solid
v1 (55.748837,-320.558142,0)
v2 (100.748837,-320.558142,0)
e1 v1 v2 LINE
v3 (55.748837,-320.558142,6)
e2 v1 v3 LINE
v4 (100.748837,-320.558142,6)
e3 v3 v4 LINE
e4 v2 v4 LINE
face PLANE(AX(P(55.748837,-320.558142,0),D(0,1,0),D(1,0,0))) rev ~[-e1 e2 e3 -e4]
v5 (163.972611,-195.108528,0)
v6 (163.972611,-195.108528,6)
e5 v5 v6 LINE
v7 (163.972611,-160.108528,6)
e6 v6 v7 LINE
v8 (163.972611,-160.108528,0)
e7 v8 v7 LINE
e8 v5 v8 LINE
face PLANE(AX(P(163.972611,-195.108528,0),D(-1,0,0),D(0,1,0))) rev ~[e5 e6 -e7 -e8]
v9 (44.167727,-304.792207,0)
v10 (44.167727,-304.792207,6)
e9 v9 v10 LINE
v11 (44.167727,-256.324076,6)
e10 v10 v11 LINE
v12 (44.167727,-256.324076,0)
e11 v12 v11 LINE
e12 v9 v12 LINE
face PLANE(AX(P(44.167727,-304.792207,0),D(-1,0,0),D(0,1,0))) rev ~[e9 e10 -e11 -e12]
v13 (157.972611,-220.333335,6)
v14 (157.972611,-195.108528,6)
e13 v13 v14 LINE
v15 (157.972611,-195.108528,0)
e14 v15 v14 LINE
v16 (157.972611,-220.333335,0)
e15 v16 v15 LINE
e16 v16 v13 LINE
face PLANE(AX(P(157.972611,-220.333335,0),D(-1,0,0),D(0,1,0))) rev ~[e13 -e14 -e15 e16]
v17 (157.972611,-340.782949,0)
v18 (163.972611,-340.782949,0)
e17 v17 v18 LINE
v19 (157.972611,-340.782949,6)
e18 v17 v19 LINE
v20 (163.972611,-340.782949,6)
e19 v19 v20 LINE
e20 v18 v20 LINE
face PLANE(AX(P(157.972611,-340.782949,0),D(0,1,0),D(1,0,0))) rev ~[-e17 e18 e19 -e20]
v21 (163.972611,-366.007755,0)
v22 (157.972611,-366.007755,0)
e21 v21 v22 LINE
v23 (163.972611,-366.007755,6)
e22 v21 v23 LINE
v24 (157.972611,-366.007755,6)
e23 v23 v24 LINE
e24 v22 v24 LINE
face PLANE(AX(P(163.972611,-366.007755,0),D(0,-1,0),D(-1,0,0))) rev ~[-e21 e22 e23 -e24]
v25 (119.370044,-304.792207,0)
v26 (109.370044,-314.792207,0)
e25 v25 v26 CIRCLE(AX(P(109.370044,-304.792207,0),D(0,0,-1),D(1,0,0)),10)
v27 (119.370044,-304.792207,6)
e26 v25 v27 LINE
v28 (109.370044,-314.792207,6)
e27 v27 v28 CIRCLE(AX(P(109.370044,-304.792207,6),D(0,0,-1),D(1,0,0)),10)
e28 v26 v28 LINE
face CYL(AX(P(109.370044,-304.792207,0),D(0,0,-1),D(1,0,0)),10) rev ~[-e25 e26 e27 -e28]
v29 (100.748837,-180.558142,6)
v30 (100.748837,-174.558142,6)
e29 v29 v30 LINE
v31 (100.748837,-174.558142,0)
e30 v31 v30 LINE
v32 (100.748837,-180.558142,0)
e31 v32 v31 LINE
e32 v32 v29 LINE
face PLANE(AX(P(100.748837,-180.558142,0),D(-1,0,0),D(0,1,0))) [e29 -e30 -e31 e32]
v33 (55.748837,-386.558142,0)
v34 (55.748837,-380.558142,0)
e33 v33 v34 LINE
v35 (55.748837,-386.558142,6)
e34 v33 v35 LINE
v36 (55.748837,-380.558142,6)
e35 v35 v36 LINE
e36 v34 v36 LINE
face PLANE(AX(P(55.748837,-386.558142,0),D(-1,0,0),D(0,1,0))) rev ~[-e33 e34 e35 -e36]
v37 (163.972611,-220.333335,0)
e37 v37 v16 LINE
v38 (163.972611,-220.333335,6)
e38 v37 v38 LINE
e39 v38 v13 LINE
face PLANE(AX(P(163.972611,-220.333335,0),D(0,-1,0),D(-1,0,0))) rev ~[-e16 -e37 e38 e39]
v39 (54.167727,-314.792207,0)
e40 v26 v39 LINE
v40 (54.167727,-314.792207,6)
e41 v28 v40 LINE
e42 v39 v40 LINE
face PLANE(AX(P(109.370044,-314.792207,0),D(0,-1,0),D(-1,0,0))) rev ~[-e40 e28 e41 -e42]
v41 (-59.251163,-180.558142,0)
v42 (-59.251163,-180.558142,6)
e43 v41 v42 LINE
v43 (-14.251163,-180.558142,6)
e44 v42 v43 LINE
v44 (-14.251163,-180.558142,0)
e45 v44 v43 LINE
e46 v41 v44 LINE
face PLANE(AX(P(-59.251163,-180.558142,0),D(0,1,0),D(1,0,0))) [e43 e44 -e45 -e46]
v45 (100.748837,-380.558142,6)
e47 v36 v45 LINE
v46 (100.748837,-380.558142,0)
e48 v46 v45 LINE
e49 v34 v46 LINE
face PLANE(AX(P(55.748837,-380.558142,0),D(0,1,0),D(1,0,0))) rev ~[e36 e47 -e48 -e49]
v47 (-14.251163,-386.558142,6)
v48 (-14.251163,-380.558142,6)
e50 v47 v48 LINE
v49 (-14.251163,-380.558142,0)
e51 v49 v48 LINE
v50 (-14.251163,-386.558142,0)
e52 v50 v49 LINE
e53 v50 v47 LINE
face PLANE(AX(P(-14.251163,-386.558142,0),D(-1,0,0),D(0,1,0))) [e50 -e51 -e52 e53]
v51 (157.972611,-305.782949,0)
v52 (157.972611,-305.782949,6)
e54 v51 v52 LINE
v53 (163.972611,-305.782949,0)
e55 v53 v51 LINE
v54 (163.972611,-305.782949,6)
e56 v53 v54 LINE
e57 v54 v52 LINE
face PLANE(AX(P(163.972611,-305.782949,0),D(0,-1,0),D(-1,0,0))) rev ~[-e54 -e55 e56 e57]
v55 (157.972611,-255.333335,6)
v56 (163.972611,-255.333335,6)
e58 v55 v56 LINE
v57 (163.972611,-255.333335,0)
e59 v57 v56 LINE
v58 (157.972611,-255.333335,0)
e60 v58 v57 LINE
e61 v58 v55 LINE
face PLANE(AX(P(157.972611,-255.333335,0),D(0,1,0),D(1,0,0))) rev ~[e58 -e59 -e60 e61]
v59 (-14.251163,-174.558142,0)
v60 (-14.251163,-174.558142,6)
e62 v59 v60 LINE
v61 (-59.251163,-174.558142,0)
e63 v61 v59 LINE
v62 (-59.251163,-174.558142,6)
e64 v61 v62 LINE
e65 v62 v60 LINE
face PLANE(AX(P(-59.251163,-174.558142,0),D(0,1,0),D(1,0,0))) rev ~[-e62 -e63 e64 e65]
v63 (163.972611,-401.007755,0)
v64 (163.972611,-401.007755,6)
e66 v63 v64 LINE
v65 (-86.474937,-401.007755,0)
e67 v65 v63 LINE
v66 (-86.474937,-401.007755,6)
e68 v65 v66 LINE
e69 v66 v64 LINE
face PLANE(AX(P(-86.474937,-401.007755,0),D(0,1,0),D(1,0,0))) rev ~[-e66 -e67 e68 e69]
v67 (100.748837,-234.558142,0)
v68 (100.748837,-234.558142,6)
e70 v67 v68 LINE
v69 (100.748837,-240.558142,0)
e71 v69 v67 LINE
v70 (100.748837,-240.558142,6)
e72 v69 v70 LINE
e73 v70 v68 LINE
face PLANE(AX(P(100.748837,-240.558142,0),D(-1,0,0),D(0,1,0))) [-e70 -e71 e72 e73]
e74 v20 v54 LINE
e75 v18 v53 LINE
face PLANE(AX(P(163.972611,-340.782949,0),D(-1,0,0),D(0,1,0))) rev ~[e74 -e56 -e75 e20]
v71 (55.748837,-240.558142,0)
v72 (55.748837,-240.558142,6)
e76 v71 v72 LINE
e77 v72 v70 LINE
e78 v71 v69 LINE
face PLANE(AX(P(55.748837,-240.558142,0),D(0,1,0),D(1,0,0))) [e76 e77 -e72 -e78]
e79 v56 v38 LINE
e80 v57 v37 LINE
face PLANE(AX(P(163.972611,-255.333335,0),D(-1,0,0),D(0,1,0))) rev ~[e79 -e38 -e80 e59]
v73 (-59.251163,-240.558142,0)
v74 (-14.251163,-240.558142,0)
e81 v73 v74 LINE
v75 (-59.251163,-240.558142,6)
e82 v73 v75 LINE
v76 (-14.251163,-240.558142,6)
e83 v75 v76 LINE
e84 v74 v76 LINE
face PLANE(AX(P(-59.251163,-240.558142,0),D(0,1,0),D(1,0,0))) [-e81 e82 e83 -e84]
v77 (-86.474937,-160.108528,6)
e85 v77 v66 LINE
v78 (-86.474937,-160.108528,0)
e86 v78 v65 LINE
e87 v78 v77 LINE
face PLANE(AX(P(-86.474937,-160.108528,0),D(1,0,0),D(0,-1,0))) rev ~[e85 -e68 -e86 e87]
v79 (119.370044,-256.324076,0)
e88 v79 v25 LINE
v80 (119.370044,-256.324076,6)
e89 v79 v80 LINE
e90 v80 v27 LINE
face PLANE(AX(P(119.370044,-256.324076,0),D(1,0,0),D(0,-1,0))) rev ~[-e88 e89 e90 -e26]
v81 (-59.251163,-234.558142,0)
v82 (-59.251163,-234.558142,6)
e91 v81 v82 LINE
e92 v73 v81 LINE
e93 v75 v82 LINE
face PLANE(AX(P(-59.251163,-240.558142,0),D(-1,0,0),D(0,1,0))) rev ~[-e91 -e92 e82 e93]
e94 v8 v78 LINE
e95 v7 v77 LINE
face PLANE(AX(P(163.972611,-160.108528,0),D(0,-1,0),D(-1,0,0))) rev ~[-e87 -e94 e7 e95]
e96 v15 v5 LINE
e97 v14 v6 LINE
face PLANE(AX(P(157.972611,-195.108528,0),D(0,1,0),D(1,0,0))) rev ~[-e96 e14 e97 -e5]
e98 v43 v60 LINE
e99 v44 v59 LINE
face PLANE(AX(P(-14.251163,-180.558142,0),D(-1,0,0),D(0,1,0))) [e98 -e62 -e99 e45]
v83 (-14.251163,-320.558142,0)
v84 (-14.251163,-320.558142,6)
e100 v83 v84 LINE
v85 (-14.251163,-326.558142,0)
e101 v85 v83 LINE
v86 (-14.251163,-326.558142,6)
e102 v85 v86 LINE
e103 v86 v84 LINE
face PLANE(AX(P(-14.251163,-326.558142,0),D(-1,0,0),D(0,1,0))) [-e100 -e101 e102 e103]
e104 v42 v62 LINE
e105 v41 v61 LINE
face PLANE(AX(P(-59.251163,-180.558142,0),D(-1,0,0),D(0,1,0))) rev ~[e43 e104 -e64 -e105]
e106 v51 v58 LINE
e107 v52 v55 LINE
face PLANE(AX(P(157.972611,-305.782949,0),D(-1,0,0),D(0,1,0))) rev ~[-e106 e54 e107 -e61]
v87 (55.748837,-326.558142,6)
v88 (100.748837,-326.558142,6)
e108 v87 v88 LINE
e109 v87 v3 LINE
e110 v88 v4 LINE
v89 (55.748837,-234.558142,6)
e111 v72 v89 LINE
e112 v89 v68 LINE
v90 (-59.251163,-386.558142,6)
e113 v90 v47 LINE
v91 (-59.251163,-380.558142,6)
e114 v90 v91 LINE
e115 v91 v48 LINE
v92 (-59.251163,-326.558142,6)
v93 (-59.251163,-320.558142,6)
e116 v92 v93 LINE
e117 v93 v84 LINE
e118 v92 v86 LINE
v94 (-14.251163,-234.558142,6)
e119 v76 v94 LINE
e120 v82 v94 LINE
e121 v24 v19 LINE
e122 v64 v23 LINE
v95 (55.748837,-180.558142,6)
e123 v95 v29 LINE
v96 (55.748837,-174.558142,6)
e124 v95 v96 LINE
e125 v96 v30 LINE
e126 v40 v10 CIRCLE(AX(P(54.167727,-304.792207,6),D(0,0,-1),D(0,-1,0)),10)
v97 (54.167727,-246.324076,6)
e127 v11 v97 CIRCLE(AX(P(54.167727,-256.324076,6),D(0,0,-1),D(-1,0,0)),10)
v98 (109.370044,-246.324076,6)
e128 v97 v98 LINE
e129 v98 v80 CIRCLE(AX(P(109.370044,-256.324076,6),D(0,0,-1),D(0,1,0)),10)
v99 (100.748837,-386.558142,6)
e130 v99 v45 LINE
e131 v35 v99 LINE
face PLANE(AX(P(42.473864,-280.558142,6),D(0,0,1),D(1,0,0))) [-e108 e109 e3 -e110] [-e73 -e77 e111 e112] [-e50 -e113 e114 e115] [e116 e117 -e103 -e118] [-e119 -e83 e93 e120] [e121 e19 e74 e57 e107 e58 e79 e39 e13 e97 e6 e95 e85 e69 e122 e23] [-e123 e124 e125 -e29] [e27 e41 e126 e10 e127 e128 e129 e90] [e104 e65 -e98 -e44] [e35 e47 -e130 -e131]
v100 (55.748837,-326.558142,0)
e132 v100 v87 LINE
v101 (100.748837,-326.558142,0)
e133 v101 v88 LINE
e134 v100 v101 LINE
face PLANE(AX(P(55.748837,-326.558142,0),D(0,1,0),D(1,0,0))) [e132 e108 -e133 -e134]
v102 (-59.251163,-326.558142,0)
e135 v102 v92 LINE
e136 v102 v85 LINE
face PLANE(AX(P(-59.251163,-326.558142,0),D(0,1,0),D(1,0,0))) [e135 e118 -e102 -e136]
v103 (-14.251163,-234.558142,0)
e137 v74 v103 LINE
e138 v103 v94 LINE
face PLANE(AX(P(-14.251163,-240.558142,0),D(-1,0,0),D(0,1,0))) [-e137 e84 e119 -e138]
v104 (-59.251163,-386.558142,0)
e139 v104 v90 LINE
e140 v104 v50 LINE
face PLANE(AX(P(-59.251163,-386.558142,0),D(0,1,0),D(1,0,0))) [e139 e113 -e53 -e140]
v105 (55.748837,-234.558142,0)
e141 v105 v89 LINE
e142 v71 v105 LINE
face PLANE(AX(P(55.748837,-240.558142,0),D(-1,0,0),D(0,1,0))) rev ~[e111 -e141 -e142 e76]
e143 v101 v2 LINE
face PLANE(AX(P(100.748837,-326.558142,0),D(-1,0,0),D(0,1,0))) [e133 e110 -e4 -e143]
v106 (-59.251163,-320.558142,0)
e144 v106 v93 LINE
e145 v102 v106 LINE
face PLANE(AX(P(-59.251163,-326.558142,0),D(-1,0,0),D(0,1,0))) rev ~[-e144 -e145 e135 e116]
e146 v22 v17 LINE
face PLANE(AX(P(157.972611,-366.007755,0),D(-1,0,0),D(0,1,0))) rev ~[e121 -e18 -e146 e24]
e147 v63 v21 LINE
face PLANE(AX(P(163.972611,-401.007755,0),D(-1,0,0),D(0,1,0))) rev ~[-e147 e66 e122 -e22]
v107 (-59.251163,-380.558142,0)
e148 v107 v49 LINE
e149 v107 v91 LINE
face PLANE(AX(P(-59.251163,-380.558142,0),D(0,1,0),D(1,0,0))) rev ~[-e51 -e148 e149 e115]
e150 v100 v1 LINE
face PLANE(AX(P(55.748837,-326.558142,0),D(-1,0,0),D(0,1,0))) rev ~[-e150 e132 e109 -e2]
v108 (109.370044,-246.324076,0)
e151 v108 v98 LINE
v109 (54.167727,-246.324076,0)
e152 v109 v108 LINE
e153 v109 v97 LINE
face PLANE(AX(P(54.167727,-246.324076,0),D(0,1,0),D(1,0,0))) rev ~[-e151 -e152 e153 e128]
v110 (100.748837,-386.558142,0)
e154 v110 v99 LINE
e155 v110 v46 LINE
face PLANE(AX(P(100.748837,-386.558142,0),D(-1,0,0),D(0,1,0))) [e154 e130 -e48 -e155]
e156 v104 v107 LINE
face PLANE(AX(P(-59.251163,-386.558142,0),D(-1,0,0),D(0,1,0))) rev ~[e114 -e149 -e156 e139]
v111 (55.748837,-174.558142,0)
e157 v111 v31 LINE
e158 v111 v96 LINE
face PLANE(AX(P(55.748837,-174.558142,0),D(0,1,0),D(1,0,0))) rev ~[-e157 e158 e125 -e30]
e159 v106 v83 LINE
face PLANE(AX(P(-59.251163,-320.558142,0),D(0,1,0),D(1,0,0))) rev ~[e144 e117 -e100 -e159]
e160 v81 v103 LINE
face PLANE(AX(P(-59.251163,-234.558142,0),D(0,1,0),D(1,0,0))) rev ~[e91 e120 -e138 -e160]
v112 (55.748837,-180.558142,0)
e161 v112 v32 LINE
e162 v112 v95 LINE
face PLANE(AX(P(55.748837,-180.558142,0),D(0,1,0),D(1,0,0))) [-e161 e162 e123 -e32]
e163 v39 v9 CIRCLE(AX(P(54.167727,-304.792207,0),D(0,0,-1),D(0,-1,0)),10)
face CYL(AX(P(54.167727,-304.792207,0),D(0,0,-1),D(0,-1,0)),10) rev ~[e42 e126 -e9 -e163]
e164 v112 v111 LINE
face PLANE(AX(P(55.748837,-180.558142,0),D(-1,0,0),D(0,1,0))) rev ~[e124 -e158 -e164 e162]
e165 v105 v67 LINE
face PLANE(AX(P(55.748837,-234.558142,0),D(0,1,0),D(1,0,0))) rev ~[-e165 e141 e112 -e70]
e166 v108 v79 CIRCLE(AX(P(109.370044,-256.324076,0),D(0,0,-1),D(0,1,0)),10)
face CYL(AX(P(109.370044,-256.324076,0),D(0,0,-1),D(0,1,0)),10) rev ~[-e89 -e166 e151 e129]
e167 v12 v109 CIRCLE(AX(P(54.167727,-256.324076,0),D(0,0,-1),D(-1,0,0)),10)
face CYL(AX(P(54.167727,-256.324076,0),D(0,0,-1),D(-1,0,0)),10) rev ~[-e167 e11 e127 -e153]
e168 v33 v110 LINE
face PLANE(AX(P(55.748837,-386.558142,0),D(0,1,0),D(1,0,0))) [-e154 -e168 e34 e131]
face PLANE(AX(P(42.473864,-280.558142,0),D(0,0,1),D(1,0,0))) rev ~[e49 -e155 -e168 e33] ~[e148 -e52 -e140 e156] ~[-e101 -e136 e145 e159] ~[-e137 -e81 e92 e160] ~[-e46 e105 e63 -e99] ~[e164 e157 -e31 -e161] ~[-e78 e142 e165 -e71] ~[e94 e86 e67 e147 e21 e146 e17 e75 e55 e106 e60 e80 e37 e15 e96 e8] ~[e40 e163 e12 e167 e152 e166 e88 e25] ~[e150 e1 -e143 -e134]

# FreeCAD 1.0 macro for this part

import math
import FreeCAD as App
import Part
import Sketcher
from FreeCAD import Vector
Q = App.Units.Quantity


def add_polygon(sketch, points):
    """Adds a closed chain of lines whose ends are joined by coincident constraints."""
    first, n = sketch.GeometryCount, len(points)
    for a, b in zip(points, points[1:] + points[:1]):
        sketch.addGeometry(Part.LineSegment(App.Vector(*a, 0), App.Vector(*b, 0)), False)
    for i in range(n):
        sketch.addConstraint(Sketcher.Constraint("Coincident", first + i, 2, first + (i + 1) % n, 1))

doc = App.newDocument("Part")
body = doc.addObject("PartDesign::Body", "Body")

sketch1 = body.newObject("Sketcher::SketchObject", "Sketch")
sketch1.AttachmentSupport = (doc.getObject("XY_Plane"), [""])
sketch1.MapMode = "FlatFace"
add_polygon(sketch1, [(-86, -160), (-86, -401), (164, -401), (164, -366), (158, -366), (158, -341), (164, -341), (164, -306), (158, -306), (158, -255), (164, -255), (164, -220), (158, -220), (158, -195), (164, -195), (164, -160)])
add_polygon(sketch1, [(-14, -387), (-59, -387), (-59, -381), (-14, -381)])
add_polygon(sketch1, [(-14, -327), (-59, -327), (-59, -321), (-14, -321)])
add_polygon(sketch1, [(101, -387), (56, -387), (56, -381), (101, -381)])
add_polygon(sketch1, [(101, -327), (56, -327), (56, -321), (101, -321)])
sketch1.addGeometry(Part.ArcOfCircle(Part.Circle(Vector(54, -256, 0), Vector(0, 0, 1), 10), math.radians(90), math.radians(180)), False)
sketch1.addGeometry(Part.LineSegment(Vector(54, -246, 0), Vector(109, -246, 0)), False)
sketch1.addGeometry(Part.ArcOfCircle(Part.Circle(Vector(109, -256, 0), Vector(0, 0, 1), 10), math.radians(0), math.radians(90)), False)
sketch1.addGeometry(Part.LineSegment(Vector(119, -256, 0), Vector(119, -305, 0)), False)
sketch1.addGeometry(Part.ArcOfCircle(Part.Circle(Vector(109, -305, 0), Vector(0, 0, 1), 10), math.radians(-90), math.radians(0)), False)
sketch1.addGeometry(Part.LineSegment(Vector(109, -315, 0), Vector(54, -315, 0)), False)
sketch1.addGeometry(Part.ArcOfCircle(Part.Circle(Vector(54, -305, 0), Vector(0, 0, 1), 10), math.radians(180), math.radians(270)), False)
sketch1.addGeometry(Part.LineSegment(Vector(44, -305, 0), Vector(44, -256, 0)), False)
add_polygon(sketch1, [(-14, -241), (-59, -241), (-59, -235), (-14, -235)])
add_polygon(sketch1, [(-14, -181), (-59, -181), (-59, -175), (-14, -175)])
add_polygon(sketch1, [(101, -241), (56, -241), (56, -235), (101, -235)])
add_polygon(sketch1, [(101, -181), (56, -181), (56, -175), (101, -175)])
sketch1.addConstraint(Sketcher.Constraint("Tangent", 32, 1, 33, 1))
sketch1.addConstraint(Sketcher.Constraint("Tangent", 33, 2, 34, 2))
sketch1.addConstraint(Sketcher.Constraint("Tangent", 34, 1, 35, 1))
sketch1.addConstraint(Sketcher.Constraint("Tangent", 35, 2, 36, 2))
sketch1.addConstraint(Sketcher.Constraint("Tangent", 36, 1, 37, 1))
sketch1.addConstraint(Sketcher.Constraint("Tangent", 37, 2, 38, 2))
sketch1.addConstraint(Sketcher.Constraint("Tangent", 38, 1, 39, 1))
sketch1.addConstraint(Sketcher.Constraint("Tangent", 39, 2, 32, 2))
sketch1.addConstraint(Sketcher.Constraint("Vertical", 0))
sketch1.addConstraint(Sketcher.Constraint("Horizontal", 1))
sketch1.addConstraint(Sketcher.Constraint("Vertical", 2))
sketch1.addConstraint(Sketcher.Constraint("Horizontal", 3))
sketch1.addConstraint(Sketcher.Constraint("Vertical", 4))
sketch1.addConstraint(Sketcher.Constraint("Horizontal", 5))
sketch1.addConstraint(Sketcher.Constraint("Vertical", 6))
sketch1.addConstraint(Sketcher.Constraint("Horizontal", 7))
sketch1.addConstraint(Sketcher.Constraint("Vertical", 8))
sketch1.addConstraint(Sketcher.Constraint("Horizontal", 9))
sketch1.addConstraint(Sketcher.Constraint("Vertical", 10))
sketch1.addConstraint(Sketcher.Constraint("Horizontal", 11))
sketch1.addConstraint(Sketcher.Constraint("Vertical", 12))
sketch1.addConstraint(Sketcher.Constraint("Horizontal", 13))
sketch1.addConstraint(Sketcher.Constraint("Vertical", 14))
sketch1.addConstraint(Sketcher.Constraint("Horizontal", 15))
sketch1.addConstraint(Sketcher.Constraint("Horizontal", 16))
sketch1.addConstraint(Sketcher.Constraint("Vertical", 17))
sketch1.addConstraint(Sketcher.Constraint("Horizontal", 18))
sketch1.addConstraint(Sketcher.Constraint("Vertical", 19))
sketch1.addConstraint(Sketcher.Constraint("Horizontal", 20))
sketch1.addConstraint(Sketcher.Constraint("Vertical", 21))
sketch1.addConstraint(Sketcher.Constraint("Horizontal", 22))
sketch1.addConstraint(Sketcher.Constraint("Vertical", 23))
sketch1.addConstraint(Sketcher.Constraint("Horizontal", 24))
sketch1.addConstraint(Sketcher.Constraint("Vertical", 25))
sketch1.addConstraint(Sketcher.Constraint("Horizontal", 26))
sketch1.addConstraint(Sketcher.Constraint("Vertical", 27))
sketch1.addConstraint(Sketcher.Constraint("Horizontal", 28))
sketch1.addConstraint(Sketcher.Constraint("Vertical", 29))
sketch1.addConstraint(Sketcher.Constraint("Horizontal", 30))
sketch1.addConstraint(Sketcher.Constraint("Vertical", 31))
sketch1.addConstraint(Sketcher.Constraint("Horizontal", 33))
sketch1.addConstraint(Sketcher.Constraint("Vertical", 35))
sketch1.addConstraint(Sketcher.Constraint("Horizontal", 37))
sketch1.addConstraint(Sketcher.Constraint("Vertical", 39))
sketch1.addConstraint(Sketcher.Constraint("Horizontal", 40))
sketch1.addConstraint(Sketcher.Constraint("Vertical", 41))
sketch1.addConstraint(Sketcher.Constraint("Horizontal", 42))
sketch1.addConstraint(Sketcher.Constraint("Vertical", 43))
sketch1.addConstraint(Sketcher.Constraint("Horizontal", 44))
sketch1.addConstraint(Sketcher.Constraint("Vertical", 45))
sketch1.addConstraint(Sketcher.Constraint("Horizontal", 46))
sketch1.addConstraint(Sketcher.Constraint("Vertical", 47))
sketch1.addConstraint(Sketcher.Constraint("Horizontal", 48))
sketch1.addConstraint(Sketcher.Constraint("Vertical", 49))
sketch1.addConstraint(Sketcher.Constraint("Horizontal", 50))
sketch1.addConstraint(Sketcher.Constraint("Vertical", 51))
sketch1.addConstraint(Sketcher.Constraint("Horizontal", 52))
sketch1.addConstraint(Sketcher.Constraint("Vertical", 53))
sketch1.addConstraint(Sketcher.Constraint("Horizontal", 54))
sketch1.addConstraint(Sketcher.Constraint("Vertical", 55))
sketch1.addConstraint(Sketcher.Constraint("Equal", 32, 34))
sketch1.addConstraint(Sketcher.Constraint("Equal", 34, 36))
sketch1.addConstraint(Sketcher.Constraint("Equal", 36, 38))
sketch1.addConstraint(Sketcher.Constraint("Horizontal", 19, 2, 24, 2))
sketch1.addConstraint(Sketcher.Constraint("Horizontal", 18, 2, 25, 2))
sketch1.addConstraint(Sketcher.Constraint("Horizontal", 23, 2, 28, 2))
sketch1.addConstraint(Sketcher.Constraint("Horizontal", 22, 2, 29, 2))
sketch1.addConstraint(Sketcher.Constraint("Horizontal", 43, 2, 48, 2))
sketch1.addConstraint(Sketcher.Constraint("Horizontal", 42, 2, 49, 2))
sketch1.addConstraint(Sketcher.Constraint("Horizontal", 47, 2, 52, 2))
sketch1.addConstraint(Sketcher.Constraint("Horizontal", 46, 2, 53, 2))
sketch1.addConstraint(Sketcher.Constraint("Vertical", 2, 2, 5, 2))
sketch1.addConstraint(Sketcher.Constraint("Vertical", 4, 2, 7, 2))
sketch1.addConstraint(Sketcher.Constraint("Vertical", 6, 2, 9, 2))
sketch1.addConstraint(Sketcher.Constraint("Vertical", 8, 2, 11, 2))
sketch1.addConstraint(Sketcher.Constraint("Vertical", 10, 2, 13, 2))
sketch1.addConstraint(Sketcher.Constraint("Vertical", 17, 2, 20, 2))
sketch1.addConstraint(Sketcher.Constraint("Vertical", 19, 2, 22, 2))
sketch1.addConstraint(Sketcher.Constraint("Vertical", 25, 2, 28, 2))
sketch1.addConstraint(Sketcher.Constraint("Vertical", 27, 2, 30, 2))
sketch1.addConstraint(Sketcher.Constraint("Vertical", 21, 2, 40, 2))
sketch1.addConstraint(Sketcher.Constraint("Vertical", 23, 2, 42, 2))
sketch1.addConstraint(Sketcher.Constraint("Vertical", 41, 2, 44, 2))
sketch1.addConstraint(Sketcher.Constraint("Vertical", 43, 2, 46, 2))
sketch1.addConstraint(Sketcher.Constraint("Vertical", 29, 2, 48, 2))
sketch1.addConstraint(Sketcher.Constraint("Vertical", 31, 2, 50, 2))
sketch1.addConstraint(Sketcher.Constraint("Vertical", 49, 2, 52, 2))
sketch1.addConstraint(Sketcher.Constraint("Vertical", 51, 2, 54, 2))
sketch1.addConstraint(Sketcher.Constraint("Equal", 22, 24))
sketch1.addConstraint(Sketcher.Constraint("Equal", 2, 6))
sketch1.addConstraint(Sketcher.Constraint("Equal", 6, 10))
sketch1.addConstraint(Sketcher.Constraint("Equal", 4, 12))
sketch1.addConstraint(Sketcher.Constraint("Equal", 10, 14))
sketch1.addConstraint(Sketcher.Constraint("Equal", 13, 17))
sketch1.addConstraint(Sketcher.Constraint("Equal", 19, 21))
sketch1.addConstraint(Sketcher.Constraint("Equal", 31, 41))
sketch1.addConstraint(Sketcher.Constraint("Equal", 43, 45))
sketch1.addConstraint(Sketcher.Constraint("Radius", 32, Q("10 mm")))
sketch1.addConstraint(Sketcher.Constraint("DistanceX", 3, 2, 3, 1, Q("6 mm")))
sketch1.addConstraint(Sketcher.Constraint("DistanceX", 16, 2, 16, 1, Q("45 mm")))
sketch1.addConstraint(Sketcher.Constraint("DistanceY", 2, 1, 2, 2, Q("35 mm")))
sketch1.addConstraint(Sketcher.Constraint("DistanceY", 17, 2, 20, 2, Q("54 mm")))
sketch1.addConstraint(Sketcher.Constraint("DistanceX", 19, 2, 24, 2, Q("70 mm")))
sketch1.addConstraint(Sketcher.Constraint("DistanceY", 21, 2, 40, 2, Q("80 mm")))
sketch1.addConstraint(Sketcher.Constraint("DistanceY", 41, 2, 44, 2, Q("54 mm")))
sketch1.addConstraint(Sketcher.Constraint("DistanceY", 35, 2, 35, 1, Q("48.468131 mm")))
sketch1.addConstraint(Sketcher.Constraint("DistanceX", 1, 1, 1, 2, Q("250.447547 mm")))
sketch1.addConstraint(Sketcher.Constraint("DistanceX", 33, 1, 33, 2, Q("55.202317 mm")))
sketch1.addConstraint(Sketcher.Constraint("DistanceY", 0, 2, 0, 1, Q("240.899227 mm")))
sketch1.addConstraint(Sketcher.Constraint("DistanceY", 4, 1, 4, 2, Q("25.224807 mm")))
sketch1.addConstraint(Sketcher.Constraint("DistanceX", -1, 1, 1, 2, Q("163.972611 mm")))
sketch1.addConstraint(Sketcher.Constraint("DistanceY", 4, 2, -1, 1, Q("340.782949 mm")))
sketch1.addConstraint(Sketcher.Constraint("DistanceY", 16, 2, -1, 1, Q("386.558142 mm")))
sketch1.addConstraint(Sketcher.Constraint("DistanceY", 0, 2, 38, 3, Q("96.215548 mm")))
sketch1.addConstraint(Sketcher.Constraint("DistanceX", 0, 2, 36, 3, Q("195.844981 mm")))
sketch1.addConstraint(Sketcher.Constraint("DistanceX", 16, 2, 38, 3, Q("113.41889 mm")))
pad1 = body.newObject("PartDesign::Pad", "Pad")
pad1.Profile = sketch1
pad1.Length = 6

doc.recompute()
